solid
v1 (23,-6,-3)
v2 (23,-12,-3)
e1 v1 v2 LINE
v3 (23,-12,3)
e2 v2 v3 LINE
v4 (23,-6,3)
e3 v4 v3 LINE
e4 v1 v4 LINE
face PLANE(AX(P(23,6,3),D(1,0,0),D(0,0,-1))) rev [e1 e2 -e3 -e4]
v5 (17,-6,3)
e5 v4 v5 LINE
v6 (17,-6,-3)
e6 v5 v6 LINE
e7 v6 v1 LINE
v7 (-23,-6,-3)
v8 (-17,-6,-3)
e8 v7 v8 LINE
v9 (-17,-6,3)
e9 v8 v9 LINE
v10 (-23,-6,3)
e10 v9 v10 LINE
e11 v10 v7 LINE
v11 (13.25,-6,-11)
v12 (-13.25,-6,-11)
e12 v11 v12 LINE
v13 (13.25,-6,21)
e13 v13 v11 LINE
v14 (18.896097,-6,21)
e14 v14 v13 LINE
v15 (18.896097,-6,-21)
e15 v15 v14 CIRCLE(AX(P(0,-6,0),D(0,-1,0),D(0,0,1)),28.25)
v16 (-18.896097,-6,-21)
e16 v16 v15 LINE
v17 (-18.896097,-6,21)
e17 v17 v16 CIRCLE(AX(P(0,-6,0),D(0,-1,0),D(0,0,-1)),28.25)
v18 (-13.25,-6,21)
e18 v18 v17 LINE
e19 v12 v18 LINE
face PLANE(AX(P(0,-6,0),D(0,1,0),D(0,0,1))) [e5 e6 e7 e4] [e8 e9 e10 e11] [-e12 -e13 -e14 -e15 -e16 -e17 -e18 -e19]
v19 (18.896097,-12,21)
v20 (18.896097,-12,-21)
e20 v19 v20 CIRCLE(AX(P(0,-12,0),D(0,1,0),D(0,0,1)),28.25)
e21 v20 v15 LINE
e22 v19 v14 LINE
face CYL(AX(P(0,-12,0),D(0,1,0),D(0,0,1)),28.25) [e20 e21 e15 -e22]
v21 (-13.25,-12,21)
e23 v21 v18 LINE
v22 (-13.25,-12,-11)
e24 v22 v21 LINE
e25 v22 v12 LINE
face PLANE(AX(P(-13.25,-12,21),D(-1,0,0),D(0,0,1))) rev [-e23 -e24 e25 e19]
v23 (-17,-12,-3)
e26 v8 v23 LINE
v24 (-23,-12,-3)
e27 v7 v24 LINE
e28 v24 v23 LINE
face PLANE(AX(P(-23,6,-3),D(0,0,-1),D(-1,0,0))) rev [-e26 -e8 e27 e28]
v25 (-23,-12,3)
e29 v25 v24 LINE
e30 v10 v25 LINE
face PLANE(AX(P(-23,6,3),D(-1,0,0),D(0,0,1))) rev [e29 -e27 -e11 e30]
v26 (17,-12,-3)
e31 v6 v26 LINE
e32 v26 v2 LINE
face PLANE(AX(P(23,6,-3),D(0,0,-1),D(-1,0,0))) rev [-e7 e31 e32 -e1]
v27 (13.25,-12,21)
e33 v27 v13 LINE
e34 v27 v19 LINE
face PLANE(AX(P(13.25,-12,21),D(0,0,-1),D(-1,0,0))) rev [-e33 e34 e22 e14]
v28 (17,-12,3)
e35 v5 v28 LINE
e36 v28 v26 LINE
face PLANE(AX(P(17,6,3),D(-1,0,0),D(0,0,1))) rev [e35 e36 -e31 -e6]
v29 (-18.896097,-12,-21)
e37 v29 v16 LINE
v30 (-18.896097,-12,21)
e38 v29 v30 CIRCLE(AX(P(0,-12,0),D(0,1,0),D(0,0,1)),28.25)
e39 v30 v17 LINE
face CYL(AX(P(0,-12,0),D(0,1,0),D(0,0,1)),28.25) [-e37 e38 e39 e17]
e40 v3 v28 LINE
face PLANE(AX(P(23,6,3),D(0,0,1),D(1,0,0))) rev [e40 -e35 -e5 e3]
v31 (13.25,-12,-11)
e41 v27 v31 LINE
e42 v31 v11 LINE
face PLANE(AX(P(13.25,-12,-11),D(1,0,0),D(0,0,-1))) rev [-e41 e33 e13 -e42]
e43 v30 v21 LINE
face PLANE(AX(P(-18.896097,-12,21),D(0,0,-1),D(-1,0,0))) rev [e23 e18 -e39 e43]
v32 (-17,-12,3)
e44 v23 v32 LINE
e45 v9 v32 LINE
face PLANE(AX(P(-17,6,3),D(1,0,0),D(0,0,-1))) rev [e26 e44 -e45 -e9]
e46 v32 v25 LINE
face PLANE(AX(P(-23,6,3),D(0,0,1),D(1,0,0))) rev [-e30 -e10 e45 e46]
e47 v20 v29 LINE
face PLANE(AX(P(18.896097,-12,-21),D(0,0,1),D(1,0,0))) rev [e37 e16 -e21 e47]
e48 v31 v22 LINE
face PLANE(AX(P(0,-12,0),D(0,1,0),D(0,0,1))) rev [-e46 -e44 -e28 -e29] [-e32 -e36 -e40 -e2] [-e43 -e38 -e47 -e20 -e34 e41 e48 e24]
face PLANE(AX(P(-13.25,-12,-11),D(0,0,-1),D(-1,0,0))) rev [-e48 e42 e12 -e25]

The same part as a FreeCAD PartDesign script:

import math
import FreeCAD as App
import Part
import Sketcher
from FreeCAD import Vector


def add_polygon(sketch, points):
    """Adds a closed chain of lines whose ends are joined by coincident constraints."""
    first, n = sketch.GeometryCount, len(points)
    for a, b in zip(points, points[1:] + points[:1]):
        sketch.addGeometry(Part.LineSegment(App.Vector(*a, 0), App.Vector(*b, 0)), False)
    for i in range(n):
        sketch.addConstraint(Sketcher.Constraint("Coincident", first + i, 2, first + (i + 1) % n, 1))

doc = App.newDocument("Part")
params = doc.addObject("Spreadsheet::Sheet", "Params")
for row, (alias, value) in enumerate([
    ("sketch1_radius", "40 mm"),
    ("sketch1_width", "20 mm"),
    ("pad1_length", "6 mm"),
    ("sketch2_diameter", "80 mm"),
    ("pad2_length", "6 mm"),
    ("sketch3_height", "32 mm"),
    ("sketch3_radius", "28.25 mm"),
    ("sketch3_width", "26.5 mm"),
    ("pad3_length", "6 mm"),
    ("sketch4_diameter", "3.5 mm"),
    ("sketch4_radius", "0.5 mm"),
    ("sketch4_radius2", "28.25 mm"),
    ("sketch4_width", "25.5 mm"),
    ("sketch4_height", "17.5 mm"),
    ("pad4_length", "6 mm"),
    ("sketch5_width", "6 mm"),
    ("sketch6_width", "322 mm"),
    ("sketch6_height", "247 mm"),
    ("pocket2_length", "12 mm"),
    ("sketch7_diameter", "56.5 mm"),
    ("pocket3_length", "6 mm"),
], start=1):
    params.set(f"A{row}", alias)
    params.set(f"B{row}", "=" + value)
    params.setAlias(f"B{row}", alias)

body = doc.addObject("PartDesign::Body", "Body")

# Sketch on XZ plane
sketch1 = body.newObject("Sketcher::SketchObject", "Sketch")
sketch1.AttachmentSupport = (doc.getObject("XZ_Plane"), [""])
sketch1.MapMode = "FlatFace"
sketch1.addGeometry([
    Part.LineSegment(Vector(-161, -104, 0), Vector(-39, -10, 0)),  # 0
    Part.ArcOfCircle(Part.Circle(Vector(0, 0, 0), Vector(0, 0, 1), 40), math.radians(166), math.radians(194)),  # 1
    Part.LineSegment(Vector(-39, 10, 0), Vector(-161, 104, 0)),  # 2
    Part.LineSegment(Vector(-161, 104, 0), Vector(-161, 124, 0)),  # 3
    Part.LineSegment(Vector(-161, 124, 0), Vector(-141, 124, 0)),  # 4
    Part.LineSegment(Vector(-141, 124, 0), Vector(-23, 33, 0)),  # 5
    Part.ArcOfCircle(Part.Circle(Vector(0, 0, 0), Vector(0, 0, 1), 40), math.radians(55), math.radians(125)),  # 6
    Part.LineSegment(Vector(23, 33, 0), Vector(141, 124, 0)),  # 7
    Part.LineSegment(Vector(141, 124, 0), Vector(161, 124, 0)),  # 8
    Part.LineSegment(Vector(161, 124, 0), Vector(161, 104, 0)),  # 9
    Part.LineSegment(Vector(161, 104, 0), Vector(39, 10, 0)),  # 10
    Part.ArcOfCircle(Part.Circle(Vector(0, 0, 0), Vector(0, 0, 1), 40), math.radians(-14), math.radians(14)),  # 11
    Part.LineSegment(Vector(39, -10, 0), Vector(161, -104, 0)),  # 12
    Part.LineSegment(Vector(161, -104, 0), Vector(161, -124, 0)),  # 13
    Part.LineSegment(Vector(161, -124, 0), Vector(141, -124, 0)),  # 14
    Part.LineSegment(Vector(141, -124, 0), Vector(23, -33, 0)),  # 15
    Part.ArcOfCircle(Part.Circle(Vector(0, 0, 0), Vector(0, 0, 1), 40), math.radians(-125), math.radians(-55)),  # 16
    Part.LineSegment(Vector(-23, -33, 0), Vector(-141, -124, 0)),  # 17
    Part.LineSegment(Vector(-141, -124, 0), Vector(-161, -124, 0)),  # 18
    Part.LineSegment(Vector(-161, -124, 0), Vector(-161, -104, 0)),  # 19
], False)
sketch1.addConstraint([
    Sketcher.Constraint("Coincident", 0, 2, 1, 2),
    Sketcher.Constraint("Coincident", 1, 1, 2, 1),
    Sketcher.Constraint("Coincident", 2, 2, 3, 1),
    Sketcher.Constraint("Coincident", 3, 2, 4, 1),
    Sketcher.Constraint("Coincident", 4, 2, 5, 1),
    Sketcher.Constraint("Coincident", 5, 2, 6, 2),
    Sketcher.Constraint("Coincident", 6, 1, 7, 1),
    Sketcher.Constraint("Coincident", 7, 2, 8, 1),
    Sketcher.Constraint("Coincident", 8, 2, 9, 1),
    Sketcher.Constraint("Coincident", 9, 2, 10, 1),
    Sketcher.Constraint("Coincident", 10, 2, 11, 2),
    Sketcher.Constraint("Coincident", 11, 1, 12, 1),
    Sketcher.Constraint("Coincident", 12, 2, 13, 1),
    Sketcher.Constraint("Coincident", 13, 2, 14, 1),
    Sketcher.Constraint("Coincident", 14, 2, 15, 1),
    Sketcher.Constraint("Coincident", 15, 2, 16, 2),
    Sketcher.Constraint("Coincident", 16, 1, 17, 1),
    Sketcher.Constraint("Coincident", 17, 2, 18, 1),
    Sketcher.Constraint("Coincident", 18, 2, 19, 1),
    Sketcher.Constraint("Coincident", 19, 2, 0, 1),
    Sketcher.Constraint("Vertical", 3),
    Sketcher.Constraint("Horizontal", 4),
    Sketcher.Constraint("Horizontal", 8),
    Sketcher.Constraint("Vertical", 9),
    Sketcher.Constraint("Vertical", 13),
    Sketcher.Constraint("Horizontal", 14),
    Sketcher.Constraint("Horizontal", 18),
    Sketcher.Constraint("Vertical", 19),
    Sketcher.Constraint("Coincident", 1, 3, -1, 1),
    Sketcher.Constraint("Coincident", 6, 3, -1, 1),
    Sketcher.Constraint("Coincident", 11, 3, -1, 1),
    Sketcher.Constraint("Coincident", 16, 3, -1, 1),
    Sketcher.Constraint("Equal", 1, 6),
    Sketcher.Constraint("Equal", 6, 11),
    Sketcher.Constraint("Equal", 11, 16),
    Sketcher.Constraint("Symmetric", 2, 2, 12, 2, -1, 1),
    Sketcher.Constraint("Symmetric", 4, 2, 14, 2, -1, 1),
    Sketcher.Constraint("Symmetric", 7, 2, 17, 2, -1, 1),
    Sketcher.Constraint("Symmetric", 9, 2, 19, 2, -1, 1),
    Sketcher.Constraint("Symmetric", 4, 2, 7, 2, -2),
    Sketcher.Constraint("Symmetric", 2, 2, 9, 2, -2),
    Sketcher.Constraint("Parallel", 2, 5),
    Sketcher.Constraint("Parallel", 0, 7),
    Sketcher.Constraint("Parallel", 7, 10),
    Sketcher.Constraint("Parallel", 5, 12),
    Sketcher.Constraint("Parallel", 12, 15),
    Sketcher.Constraint("Parallel", 10, 17),
    Sketcher.Constraint("Horizontal", 5, 2, 6, 1),
    Sketcher.Constraint("Equal", 18, 3),
    Sketcher.Constraint("Radius", 1, 40.0),
    Sketcher.Constraint("DistanceX", 4, 1, 4, 2, 20.0),
    Sketcher.Constraint("DistanceX", 2, 2, -1, 1, 161.0),
    Sketcher.Constraint("DistanceY", -1, 1, 2, 2, 103.5),
    Sketcher.Constraint("Distance", 5, 148.940169),
])
sketch1.setExpression("Constraints[49]", "Params.sketch1_radius")
sketch1.setExpression("Constraints[50]", "Params.sketch1_width")
pad1 = body.newObject("PartDesign::Pad", "Pad")
pad1.Profile = sketch1
pad1.setExpression("Length", "Params.pad1_length")
pad1.Reversed = True

# Sketch on XZ plane
sketch2 = body.newObject("Sketcher::SketchObject", "Sketch001")
sketch2.AttachmentSupport = (doc.getObject("XZ_Plane"), [""])
sketch2.MapMode = "FlatFace"
sketch2.addGeometry(Part.Circle(Vector(0, 0, 0), Vector(0, 0, 1), 40), False)
sketch2.addConstraint([
    Sketcher.Constraint("Coincident", 0, 3, -1, 1),
    Sketcher.Constraint("Diameter", 0, 80.0),
])
sketch2.setExpression("Constraints[1]", "Params.sketch2_diameter")
pad2 = body.newObject("PartDesign::Pad", "Pad001")
pad2.Profile = sketch2
pad2.setExpression("Length", "Params.pad2_length")

# Sketch on XZ plane
sketch3 = body.newObject("Sketcher::SketchObject", "Sketch002")
sketch3.AttachmentSupport = (doc.getObject("XZ_Plane"), [""])
sketch3.MapMode = "FlatFace"
sketch3.AttachmentOffset = App.Placement(Vector(0, 0, 6), App.Rotation())
sketch3.addGeometry([
    Part.LineSegment(Vector(-19, -21, 0), Vector(19, -21, 0)),  # 0
    Part.ArcOfCircle(Part.Circle(Vector(0, 0, 0), Vector(0, 0, 1), 28), math.radians(-48), math.radians(48)),  # 1
    Part.LineSegment(Vector(19, 21, 0), Vector(13, 21, 0)),  # 2
    Part.LineSegment(Vector(13, 21, 0), Vector(13, -11, 0)),  # 3
    Part.LineSegment(Vector(13, -11, 0), Vector(-13, -11, 0)),  # 4
    Part.LineSegment(Vector(-13, -11, 0), Vector(-13, 21, 0)),  # 5
    Part.LineSegment(Vector(-13, 21, 0), Vector(-19, 21, 0)),  # 6
    Part.ArcOfCircle(Part.Circle(Vector(0, 0, 0), Vector(0, 0, 1), 28), math.radians(132), math.radians(228)),  # 7
], False)
sketch3.addConstraint([
    Sketcher.Constraint("Coincident", 0, 2, 1, 1),
    Sketcher.Constraint("Coincident", 1, 2, 2, 1),
    Sketcher.Constraint("Coincident", 2, 2, 3, 1),
    Sketcher.Constraint("Coincident", 3, 2, 4, 1),
    Sketcher.Constraint("Coincident", 4, 2, 5, 1),
    Sketcher.Constraint("Coincident", 5, 2, 6, 1),
    Sketcher.Constraint("Coincident", 6, 2, 7, 1),
    Sketcher.Constraint("Coincident", 7, 2, 0, 1),
    Sketcher.Constraint("Horizontal", 0),
    Sketcher.Constraint("Horizontal", 2),
    Sketcher.Constraint("Vertical", 3),
    Sketcher.Constraint("Horizontal", 4),
    Sketcher.Constraint("Vertical", 5),
    Sketcher.Constraint("Horizontal", 6),
    Sketcher.Constraint("Coincident", 1, 3, -1, 1),
    Sketcher.Constraint("Coincident", 7, 3, -1, 1),
    Sketcher.Constraint("Equal", 1, 7),
    Sketcher.Constraint("Symmetric", 2, 2, 5, 2, -2),
    Sketcher.Constraint("Vertical", 0, 2, 1, 2),
    Sketcher.Constraint("DistanceY", 3, 2, 3, 1, 32.0),
    Sketcher.Constraint("Radius", 1, 28.25),
    Sketcher.Constraint("DistanceX", 4, 2, 4, 1, 26.5),
    Sketcher.Constraint("DistanceY", 0, 2, -1, 1, 21.0),
])
sketch3.setExpression("Constraints[19]", "Params.sketch3_height")
sketch3.setExpression("Constraints[20]", "Params.sketch3_radius")
sketch3.setExpression("Constraints[21]", "Params.sketch3_width")
pad3 = body.newObject("PartDesign::Pad", "Pad002")
pad3.Profile = sketch3
pad3.setExpression("Length", "Params.pad3_length")

# Sketch on XZ plane
sketch4 = body.newObject("Sketcher::SketchObject", "Sketch003")
sketch4.AttachmentSupport = (doc.getObject("XZ_Plane"), [""])
sketch4.MapMode = "FlatFace"
sketch4.AttachmentOffset = App.Placement(Vector(0, 0, 12), App.Rotation())
sketch4.addGeometry([
    Part.LineSegment(Vector(-13.25, 21, 0), Vector(-18.9, 21, 0)),  # 0
    Part.ArcOfCircle(Part.Circle(Vector(0, 0, 0), Vector(0, 0, 1), 28.25), math.radians(132), math.radians(228)),  # 1
    Part.LineSegment(Vector(-18.9, -21, 0), Vector(18.9, -21, 0)),  # 2
    Part.ArcOfCircle(Part.Circle(Vector(0, 0, 0), Vector(0, 0, 1), 28.25), math.radians(-48), math.radians(48)),  # 3
    Part.LineSegment(Vector(18.9, 21, 0), Vector(13.25, 21, 0)),  # 4
    Part.LineSegment(Vector(13.25, 21, 0), Vector(13.25, 3.5, 0)),  # 5
    Part.ArcOfCircle(Part.Circle(Vector(12.75, 3.5, 0), Vector(0, 0, 1), 0.5), math.radians(-90), math.radians(0)),  # 6
    Part.LineSegment(Vector(12.75, 3, 0), Vector(-12.75, 3, 0)),  # 7
    Part.ArcOfCircle(Part.Circle(Vector(-12.75, 3.5, 0), Vector(0, 0, 1), 0.5), math.radians(180), math.radians(270)),  # 8
    Part.LineSegment(Vector(-13.25, 3.5, 0), Vector(-13.25, 21, 0)),  # 9
    Part.Circle(Vector(8, -5.75, 0), Vector(0, 0, 1), 1.75),  # 10
    Part.Circle(Vector(-8, -5.75, 0), Vector(0, 0, 1), 1.75),  # 11
], False)
sketch4.addConstraint([
    Sketcher.Constraint("Coincident", 0, 2, 1, 1),
    Sketcher.Constraint("Coincident", 1, 2, 2, 1),
    Sketcher.Constraint("Coincident", 2, 2, 3, 1),
    Sketcher.Constraint("Coincident", 3, 2, 4, 1),
    Sketcher.Constraint("Coincident", 4, 2, 5, 1),
    Sketcher.Constraint("Tangent", 5, 2, 6, 2),
    Sketcher.Constraint("Tangent", 6, 1, 7, 1),
    Sketcher.Constraint("Tangent", 7, 2, 8, 2),
    Sketcher.Constraint("Tangent", 8, 1, 9, 1),
    Sketcher.Constraint("Coincident", 9, 2, 0, 1),
    Sketcher.Constraint("Horizontal", 0),
    Sketcher.Constraint("Horizontal", 2),
    Sketcher.Constraint("Horizontal", 4),
    Sketcher.Constraint("Vertical", 5),
    Sketcher.Constraint("Horizontal", 7),
    Sketcher.Constraint("Vertical", 9),
    Sketcher.Constraint("Coincident", 1, 3, -1, 1),
    Sketcher.Constraint("Coincident", 3, 3, -1, 1),
    Sketcher.Constraint("Equal", 1, 3),
    Sketcher.Constraint("Equal", 6, 8),
    Sketcher.Constraint("Equal", 10, 11),
    Sketcher.Constraint("Symmetric", 10, 3, 11, 3, -2),
    Sketcher.Constraint("Symmetric", 4, 2, 9, 2, -2),
    Sketcher.Constraint("Vertical", 0, 2, 1, 2),
    Sketcher.Constraint("Diameter", 10, 3.5),
    Sketcher.Constraint("Radius", 6, 0.5),
    Sketcher.Constraint("Radius", 1, 28.25),
    Sketcher.Constraint("DistanceX", 7, 2, 7, 1, 25.5),
    Sketcher.Constraint("DistanceY", 5, 2, 5, 1, 17.5),
    Sketcher.Constraint("DistanceX", -1, 1, 10, 3, 8.0),
    Sketcher.Constraint("DistanceY", -1, 1, 0, 2, 21.0),
    Sketcher.Constraint("DistanceY", 10, 3, -1, 1, 5.75),
])
sketch4.setExpression("Constraints[24]", "Params.sketch4_diameter")
sketch4.setExpression("Constraints[25]", "Params.sketch4_radius")
sketch4.setExpression("Constraints[26]", "Params.sketch4_radius2")
sketch4.setExpression("Constraints[27]", "Params.sketch4_width")
sketch4.setExpression("Constraints[28]", "Params.sketch4_height")
pad4 = body.newObject("PartDesign::Pad", "Pad003")
pad4.Profile = sketch4
pad4.setExpression("Length", "Params.pad4_length")

# Sketch on XZ plane
sketch5 = body.newObject("Sketcher::SketchObject", "Sketch004")
sketch5.AttachmentSupport = (doc.getObject("XZ_Plane"), [""])
sketch5.MapMode = "FlatFace"
sketch5.AttachmentOffset = App.Placement(Vector(0, 0, 18), App.Rotation())
add_polygon(sketch5, [(-23, 3), (-23, -3), (-17, -3), (-17, 3)])  # lines 0-3
add_polygon(sketch5, [(17, 3), (17, -3), (23, -3), (23, 3)])  # lines 4-7
sketch5.addConstraint([
    Sketcher.Constraint("Vertical", 0),
    Sketcher.Constraint("Horizontal", 1),
    Sketcher.Constraint("Vertical", 2),
    Sketcher.Constraint("Horizontal", 3),
    Sketcher.Constraint("Vertical", 4),
    Sketcher.Constraint("Horizontal", 5),
    Sketcher.Constraint("Vertical", 6),
    Sketcher.Constraint("Horizontal", 7),
    Sketcher.Constraint("Symmetric", 2, 2, 4, 2, -1, 1),
    Sketcher.Constraint("Symmetric", 0, 2, 6, 2, -1, 1),
    Sketcher.Constraint("Horizontal", 1, 2, 4, 2),
    Sketcher.Constraint("Equal", 7, 0),
    Sketcher.Constraint("DistanceX", 1, 1, 1, 2, 6.0),
    Sketcher.Constraint("DistanceX", 0, 2, -1, 1, 23.0),
])
sketch5.setExpression("Constraints[20]", "Params.sketch5_width")
pocket1 = body.newObject("PartDesign::Pocket", "Pocket")
pocket1.Profile = sketch5
pocket1.Type = "ThroughAll"

# Sketch on XZ plane
sketch6 = body.newObject("Sketcher::SketchObject", "Sketch005")
sketch6.AttachmentSupport = (doc.getObject("XZ_Plane"), [""])
sketch6.MapMode = "FlatFace"
sketch6.AttachmentOffset = App.Placement(Vector(0, 0, -6), App.Rotation())
add_polygon(sketch6, [(-161, -124), (-161, 124), (161, 124), (161, -124)])  # lines 0-3
sketch6.addConstraint([
    Sketcher.Constraint("Vertical", 0),
    Sketcher.Constraint("Horizontal", 1),
    Sketcher.Constraint("Vertical", 2),
    Sketcher.Constraint("Horizontal", 3),
    Sketcher.Constraint("Symmetric", 0, 2, 2, 2, -1, 1),
    Sketcher.Constraint("DistanceX", 1, 1, 1, 2, 322.0),
    Sketcher.Constraint("DistanceY", 0, 1, 0, 2, 247.0),
])
sketch6.setExpression("Constraints[9]", "Params.sketch6_width")
sketch6.setExpression("Constraints[10]", "Params.sketch6_height")
pocket2 = body.newObject("PartDesign::Pocket", "Pocket001")
pocket2.Profile = sketch6
pocket2.setExpression("Length", "Params.pocket2_length")
pocket2.Reversed = True

# Sketch on XZ plane
sketch7 = body.newObject("Sketcher::SketchObject", "Sketch006")
sketch7.AttachmentSupport = (doc.getObject("XZ_Plane"), [""])
sketch7.MapMode = "FlatFace"
sketch7.AttachmentOffset = App.Placement(Vector(0, 0, 18), App.Rotation())
sketch7.addGeometry(Part.Circle(Vector(0, 0, 0), Vector(0, 0, 1), 28), False)
sketch7.addConstraint([
    Sketcher.Constraint("Coincident", 0, 3, -1, 1),
    Sketcher.Constraint("Diameter", 0, 56.5),
])
sketch7.setExpression("Constraints[1]", "Params.sketch7_diameter")
pocket3 = body.newObject("PartDesign::Pocket", "Pocket002")
pocket3.Profile = sketch7
pocket3.setExpression("Length", "Params.pocket3_length")

doc.recompute()
